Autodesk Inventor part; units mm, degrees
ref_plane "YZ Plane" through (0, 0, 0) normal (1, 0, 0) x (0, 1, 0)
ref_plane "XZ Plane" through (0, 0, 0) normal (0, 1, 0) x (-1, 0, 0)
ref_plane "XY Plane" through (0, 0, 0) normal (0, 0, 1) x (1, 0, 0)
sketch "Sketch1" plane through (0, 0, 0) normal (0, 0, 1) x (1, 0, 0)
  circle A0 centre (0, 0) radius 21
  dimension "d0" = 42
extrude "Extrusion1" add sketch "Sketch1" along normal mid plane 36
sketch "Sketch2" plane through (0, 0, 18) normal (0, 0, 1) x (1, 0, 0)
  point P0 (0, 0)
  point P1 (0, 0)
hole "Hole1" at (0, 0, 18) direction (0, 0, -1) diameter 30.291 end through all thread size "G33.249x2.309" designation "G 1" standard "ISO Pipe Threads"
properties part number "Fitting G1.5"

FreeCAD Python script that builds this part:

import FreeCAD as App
import Part
import Sketcher

V = App.Vector

doc = App.newDocument("Part")
body = doc.addObject("PartDesign::Body", "Body")

# Sketch on XY plane
sketch1 = doc.addObject("Sketcher::SketchObject", "Sketch")
body.addObject(sketch1)
sketch1.AttachmentSupport = (doc.XY_Plane, [""])
sketch1.MapMode = "FlatFace"
sketch1.addGeometry(Part.Circle(V(0, 0, 0), V(0, 0, 1), 21), False)
sketch1.addConstraint([
    Sketcher.Constraint("Coincident", 0, 3, -1, 1),
    Sketcher.Constraint("Diameter", 0, 42.0),
])
pad1 = doc.addObject("PartDesign::Pad", "Pad")
body.addObject(pad1)
pad1.Profile = sketch1
pad1.Length = 36
pad1.Midplane = True

# Sketch on XY plane
sketch2 = doc.addObject("Sketcher::SketchObject", "Sketch001")
body.addObject(sketch2)
sketch2.AttachmentSupport = (doc.XY_Plane, [""])
sketch2.MapMode = "FlatFace"
sketch2.AttachmentOffset = App.Placement(V(0, 0, 18), App.Rotation())
sketch2.addGeometry(Part.Circle(V(0, 0, 0), V(0, 0, 1), 15), False)
sketch2.addConstraint([
    Sketcher.Constraint("Coincident", 0, 3, -1, 1),
    Sketcher.Constraint("Diameter", 0, 30.291),
])
doc.recompute()
hole = doc.addObject("PartDesign::Hole", "Hole")
body.addObject(hole)
hole.Profile = sketch2
hole.ThreadType = "None"
hole.Diameter = 30.291
hole.DepthType = "ThroughAll"

doc.recompute()
